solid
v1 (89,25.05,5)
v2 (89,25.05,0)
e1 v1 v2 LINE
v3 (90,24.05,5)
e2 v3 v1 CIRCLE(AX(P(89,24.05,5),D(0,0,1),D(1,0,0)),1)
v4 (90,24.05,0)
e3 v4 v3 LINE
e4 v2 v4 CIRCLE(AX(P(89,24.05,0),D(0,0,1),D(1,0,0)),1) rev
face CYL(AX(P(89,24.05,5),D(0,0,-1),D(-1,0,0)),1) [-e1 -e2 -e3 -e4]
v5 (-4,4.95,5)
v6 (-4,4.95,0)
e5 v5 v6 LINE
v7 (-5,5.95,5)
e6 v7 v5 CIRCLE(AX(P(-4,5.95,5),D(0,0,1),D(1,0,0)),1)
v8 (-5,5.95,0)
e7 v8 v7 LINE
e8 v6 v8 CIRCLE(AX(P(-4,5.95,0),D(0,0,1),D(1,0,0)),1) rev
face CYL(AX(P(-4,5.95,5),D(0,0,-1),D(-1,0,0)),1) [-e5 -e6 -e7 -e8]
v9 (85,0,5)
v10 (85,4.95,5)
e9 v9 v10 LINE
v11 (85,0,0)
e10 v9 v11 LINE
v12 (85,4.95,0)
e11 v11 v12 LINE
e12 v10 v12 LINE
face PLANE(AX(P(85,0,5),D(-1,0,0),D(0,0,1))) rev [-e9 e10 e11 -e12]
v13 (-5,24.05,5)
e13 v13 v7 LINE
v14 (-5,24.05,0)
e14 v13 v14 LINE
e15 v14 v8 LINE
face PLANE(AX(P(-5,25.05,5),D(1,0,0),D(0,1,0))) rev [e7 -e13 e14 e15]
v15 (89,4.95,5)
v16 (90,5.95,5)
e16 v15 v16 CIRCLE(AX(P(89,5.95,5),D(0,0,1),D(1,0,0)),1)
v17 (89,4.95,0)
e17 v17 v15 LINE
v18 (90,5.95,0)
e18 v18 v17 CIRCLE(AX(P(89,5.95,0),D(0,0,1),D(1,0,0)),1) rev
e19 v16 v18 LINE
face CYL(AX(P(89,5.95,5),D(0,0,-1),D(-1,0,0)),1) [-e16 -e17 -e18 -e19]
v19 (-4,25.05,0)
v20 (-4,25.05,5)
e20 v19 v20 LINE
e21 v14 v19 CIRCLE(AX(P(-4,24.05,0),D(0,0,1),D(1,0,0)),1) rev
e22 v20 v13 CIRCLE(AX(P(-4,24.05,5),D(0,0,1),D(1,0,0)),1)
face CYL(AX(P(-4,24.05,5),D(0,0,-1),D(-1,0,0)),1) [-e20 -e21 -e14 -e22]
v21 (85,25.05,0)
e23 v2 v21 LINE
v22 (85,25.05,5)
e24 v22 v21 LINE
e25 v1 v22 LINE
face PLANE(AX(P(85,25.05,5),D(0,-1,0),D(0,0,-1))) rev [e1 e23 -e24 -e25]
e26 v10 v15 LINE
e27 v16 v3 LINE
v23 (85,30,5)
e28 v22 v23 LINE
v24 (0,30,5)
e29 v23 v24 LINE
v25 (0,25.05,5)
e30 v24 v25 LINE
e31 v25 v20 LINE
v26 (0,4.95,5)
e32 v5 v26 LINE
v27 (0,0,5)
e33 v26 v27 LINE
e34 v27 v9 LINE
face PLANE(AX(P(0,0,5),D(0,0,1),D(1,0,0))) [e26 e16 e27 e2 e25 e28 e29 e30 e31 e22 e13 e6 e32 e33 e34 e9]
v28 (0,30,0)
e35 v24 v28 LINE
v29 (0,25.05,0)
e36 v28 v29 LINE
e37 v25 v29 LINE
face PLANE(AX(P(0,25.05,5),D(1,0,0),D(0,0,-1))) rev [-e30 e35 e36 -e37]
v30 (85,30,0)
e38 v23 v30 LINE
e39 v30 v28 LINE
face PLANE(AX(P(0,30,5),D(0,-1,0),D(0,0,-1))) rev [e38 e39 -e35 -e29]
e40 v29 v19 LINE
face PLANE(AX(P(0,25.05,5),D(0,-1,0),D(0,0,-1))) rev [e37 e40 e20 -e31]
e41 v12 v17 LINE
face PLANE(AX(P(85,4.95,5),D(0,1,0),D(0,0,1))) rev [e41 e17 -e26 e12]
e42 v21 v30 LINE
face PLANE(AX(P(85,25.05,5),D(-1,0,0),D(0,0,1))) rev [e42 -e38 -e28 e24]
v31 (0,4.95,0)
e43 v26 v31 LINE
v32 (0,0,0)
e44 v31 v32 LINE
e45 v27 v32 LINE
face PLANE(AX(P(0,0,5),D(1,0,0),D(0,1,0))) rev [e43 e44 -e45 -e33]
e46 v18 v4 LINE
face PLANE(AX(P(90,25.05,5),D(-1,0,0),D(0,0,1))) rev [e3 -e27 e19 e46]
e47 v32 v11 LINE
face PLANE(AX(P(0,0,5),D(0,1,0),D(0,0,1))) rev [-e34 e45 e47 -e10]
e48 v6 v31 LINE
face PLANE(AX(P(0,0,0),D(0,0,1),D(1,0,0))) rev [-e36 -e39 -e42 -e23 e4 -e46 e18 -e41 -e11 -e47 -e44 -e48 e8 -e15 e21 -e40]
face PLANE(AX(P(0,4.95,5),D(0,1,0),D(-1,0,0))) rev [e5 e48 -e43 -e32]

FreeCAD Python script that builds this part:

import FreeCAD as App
import Part
import Sketcher

V = App.Vector
Q = App.Units.Quantity


def edges_at(feature, points):
    """Names of the edges that pass closest to the given points."""
    edges = feature.Shape.Edges
    near = lambda p: min(range(len(edges)), key=lambda i: edges[i].distToShape(Part.Vertex(*p))[0])
    return sorted({f"Edge{near(p) + 1}" for p in points})

doc = App.newDocument("Part")
body = doc.addObject("PartDesign::Body", "Body")

# Sketch on XY plane
sketch1 = body.newObject("Sketcher::SketchObject", "Sketch")
sketch1.AttachmentSupport = (doc.getObject("XY_Plane"), [""])
sketch1.MapMode = "FlatFace"
sketch1.addGeometry([
    Part.LineSegment(V(85, 25.1, 0), V(85, 30, 0)),  # 0
    Part.LineSegment(V(85, 30, 0), V(0, 30, 0)),  # 1
    Part.LineSegment(V(0, 30, 0), V(0, 25.1, 0)),  # 2
    Part.LineSegment(V(0, 25.1, 0), V(-5, 25.1, 0)),  # 3
    Part.LineSegment(V(-5, 25.1, 0), V(-5, 5, 0)),  # 4
    Part.LineSegment(V(-5, 5, 0), V(0, 5, 0)),  # 5
    Part.LineSegment(V(0, 5, 0), V(0, 0, 0)),  # 6
    Part.LineSegment(V(0, 0, 0), V(85, 0, 0)),  # 7
    Part.LineSegment(V(85, 0, 0), V(85, 5, 0)),  # 8
    Part.LineSegment(V(85, 5, 0), V(90, 5, 0)),  # 9
    Part.LineSegment(V(90, 5, 0), V(90, 25.1, 0)),  # 10
    Part.LineSegment(V(90, 25.1, 0), V(85, 25.1, 0)),  # 11
], False)
sketch1.addConstraint([
    Sketcher.Constraint("Coincident", 0, 2, 1, 1),
    Sketcher.Constraint("Coincident", 1, 2, 2, 1),
    Sketcher.Constraint("Coincident", 2, 2, 3, 1),
    Sketcher.Constraint("Coincident", 3, 2, 4, 1),
    Sketcher.Constraint("Coincident", 4, 2, 5, 1),
    Sketcher.Constraint("Coincident", 5, 2, 6, 1),
    Sketcher.Constraint("Coincident", 6, 2, 7, 1),
    Sketcher.Constraint("Coincident", 7, 2, 8, 1),
    Sketcher.Constraint("Coincident", 8, 2, 9, 1),
    Sketcher.Constraint("Coincident", 9, 2, 10, 1),
    Sketcher.Constraint("Coincident", 10, 2, 11, 1),
    Sketcher.Constraint("Coincident", 11, 2, 0, 1),
    Sketcher.Constraint("Vertical", 0),
    Sketcher.Constraint("Horizontal", 1),
    Sketcher.Constraint("Vertical", 2),
    Sketcher.Constraint("Horizontal", 3),
    Sketcher.Constraint("Vertical", 4),
    Sketcher.Constraint("Horizontal", 5),
    Sketcher.Constraint("Vertical", 6),
    Sketcher.Constraint("Horizontal", 7),
    Sketcher.Constraint("Vertical", 8),
    Sketcher.Constraint("Horizontal", 9),
    Sketcher.Constraint("Vertical", 10),
    Sketcher.Constraint("Horizontal", 11),
    Sketcher.Constraint("Coincident", 6, 2, -1, 1),
    Sketcher.Constraint("PointOnObject", 1, 2, -2),
    Sketcher.Constraint("Horizontal", 5, 2, 8, 2),
    Sketcher.Constraint("Horizontal", 3, 2, 10, 2),
    Sketcher.Constraint("Vertical", 0, 2, 7, 2),
    Sketcher.Constraint("Equal", 5, 9),
    Sketcher.Constraint("Equal", 2, 6),
    Sketcher.Constraint("DistanceX", 1, 2, 1, 1, Q("85 mm")),
    Sketcher.Constraint("DistanceX", 3, 2, 3, 1, Q("5 mm")),
    Sketcher.Constraint("DistanceY", 4, 2, 4, 1, Q("20.1 mm")),
    Sketcher.Constraint("DistanceY", -1, 1, 0, 2, Q("30 mm")),
])
pad1 = body.newObject("PartDesign::Pad", "Pad")
pad1.Profile = sketch1
pad1.Length = 5
doc.recompute()

fillet = body.newObject("PartDesign::Fillet", "Fillet")
fillet.Base = (pad1, edges_at(pad1, [
    (-5, 4.95, 2.5),
    (-5, 25.05, 2.5),
    (90, 25.05, 2.5),
    (90, 4.95, 2.5),
]))
fillet.Radius = 1

doc.recompute()
